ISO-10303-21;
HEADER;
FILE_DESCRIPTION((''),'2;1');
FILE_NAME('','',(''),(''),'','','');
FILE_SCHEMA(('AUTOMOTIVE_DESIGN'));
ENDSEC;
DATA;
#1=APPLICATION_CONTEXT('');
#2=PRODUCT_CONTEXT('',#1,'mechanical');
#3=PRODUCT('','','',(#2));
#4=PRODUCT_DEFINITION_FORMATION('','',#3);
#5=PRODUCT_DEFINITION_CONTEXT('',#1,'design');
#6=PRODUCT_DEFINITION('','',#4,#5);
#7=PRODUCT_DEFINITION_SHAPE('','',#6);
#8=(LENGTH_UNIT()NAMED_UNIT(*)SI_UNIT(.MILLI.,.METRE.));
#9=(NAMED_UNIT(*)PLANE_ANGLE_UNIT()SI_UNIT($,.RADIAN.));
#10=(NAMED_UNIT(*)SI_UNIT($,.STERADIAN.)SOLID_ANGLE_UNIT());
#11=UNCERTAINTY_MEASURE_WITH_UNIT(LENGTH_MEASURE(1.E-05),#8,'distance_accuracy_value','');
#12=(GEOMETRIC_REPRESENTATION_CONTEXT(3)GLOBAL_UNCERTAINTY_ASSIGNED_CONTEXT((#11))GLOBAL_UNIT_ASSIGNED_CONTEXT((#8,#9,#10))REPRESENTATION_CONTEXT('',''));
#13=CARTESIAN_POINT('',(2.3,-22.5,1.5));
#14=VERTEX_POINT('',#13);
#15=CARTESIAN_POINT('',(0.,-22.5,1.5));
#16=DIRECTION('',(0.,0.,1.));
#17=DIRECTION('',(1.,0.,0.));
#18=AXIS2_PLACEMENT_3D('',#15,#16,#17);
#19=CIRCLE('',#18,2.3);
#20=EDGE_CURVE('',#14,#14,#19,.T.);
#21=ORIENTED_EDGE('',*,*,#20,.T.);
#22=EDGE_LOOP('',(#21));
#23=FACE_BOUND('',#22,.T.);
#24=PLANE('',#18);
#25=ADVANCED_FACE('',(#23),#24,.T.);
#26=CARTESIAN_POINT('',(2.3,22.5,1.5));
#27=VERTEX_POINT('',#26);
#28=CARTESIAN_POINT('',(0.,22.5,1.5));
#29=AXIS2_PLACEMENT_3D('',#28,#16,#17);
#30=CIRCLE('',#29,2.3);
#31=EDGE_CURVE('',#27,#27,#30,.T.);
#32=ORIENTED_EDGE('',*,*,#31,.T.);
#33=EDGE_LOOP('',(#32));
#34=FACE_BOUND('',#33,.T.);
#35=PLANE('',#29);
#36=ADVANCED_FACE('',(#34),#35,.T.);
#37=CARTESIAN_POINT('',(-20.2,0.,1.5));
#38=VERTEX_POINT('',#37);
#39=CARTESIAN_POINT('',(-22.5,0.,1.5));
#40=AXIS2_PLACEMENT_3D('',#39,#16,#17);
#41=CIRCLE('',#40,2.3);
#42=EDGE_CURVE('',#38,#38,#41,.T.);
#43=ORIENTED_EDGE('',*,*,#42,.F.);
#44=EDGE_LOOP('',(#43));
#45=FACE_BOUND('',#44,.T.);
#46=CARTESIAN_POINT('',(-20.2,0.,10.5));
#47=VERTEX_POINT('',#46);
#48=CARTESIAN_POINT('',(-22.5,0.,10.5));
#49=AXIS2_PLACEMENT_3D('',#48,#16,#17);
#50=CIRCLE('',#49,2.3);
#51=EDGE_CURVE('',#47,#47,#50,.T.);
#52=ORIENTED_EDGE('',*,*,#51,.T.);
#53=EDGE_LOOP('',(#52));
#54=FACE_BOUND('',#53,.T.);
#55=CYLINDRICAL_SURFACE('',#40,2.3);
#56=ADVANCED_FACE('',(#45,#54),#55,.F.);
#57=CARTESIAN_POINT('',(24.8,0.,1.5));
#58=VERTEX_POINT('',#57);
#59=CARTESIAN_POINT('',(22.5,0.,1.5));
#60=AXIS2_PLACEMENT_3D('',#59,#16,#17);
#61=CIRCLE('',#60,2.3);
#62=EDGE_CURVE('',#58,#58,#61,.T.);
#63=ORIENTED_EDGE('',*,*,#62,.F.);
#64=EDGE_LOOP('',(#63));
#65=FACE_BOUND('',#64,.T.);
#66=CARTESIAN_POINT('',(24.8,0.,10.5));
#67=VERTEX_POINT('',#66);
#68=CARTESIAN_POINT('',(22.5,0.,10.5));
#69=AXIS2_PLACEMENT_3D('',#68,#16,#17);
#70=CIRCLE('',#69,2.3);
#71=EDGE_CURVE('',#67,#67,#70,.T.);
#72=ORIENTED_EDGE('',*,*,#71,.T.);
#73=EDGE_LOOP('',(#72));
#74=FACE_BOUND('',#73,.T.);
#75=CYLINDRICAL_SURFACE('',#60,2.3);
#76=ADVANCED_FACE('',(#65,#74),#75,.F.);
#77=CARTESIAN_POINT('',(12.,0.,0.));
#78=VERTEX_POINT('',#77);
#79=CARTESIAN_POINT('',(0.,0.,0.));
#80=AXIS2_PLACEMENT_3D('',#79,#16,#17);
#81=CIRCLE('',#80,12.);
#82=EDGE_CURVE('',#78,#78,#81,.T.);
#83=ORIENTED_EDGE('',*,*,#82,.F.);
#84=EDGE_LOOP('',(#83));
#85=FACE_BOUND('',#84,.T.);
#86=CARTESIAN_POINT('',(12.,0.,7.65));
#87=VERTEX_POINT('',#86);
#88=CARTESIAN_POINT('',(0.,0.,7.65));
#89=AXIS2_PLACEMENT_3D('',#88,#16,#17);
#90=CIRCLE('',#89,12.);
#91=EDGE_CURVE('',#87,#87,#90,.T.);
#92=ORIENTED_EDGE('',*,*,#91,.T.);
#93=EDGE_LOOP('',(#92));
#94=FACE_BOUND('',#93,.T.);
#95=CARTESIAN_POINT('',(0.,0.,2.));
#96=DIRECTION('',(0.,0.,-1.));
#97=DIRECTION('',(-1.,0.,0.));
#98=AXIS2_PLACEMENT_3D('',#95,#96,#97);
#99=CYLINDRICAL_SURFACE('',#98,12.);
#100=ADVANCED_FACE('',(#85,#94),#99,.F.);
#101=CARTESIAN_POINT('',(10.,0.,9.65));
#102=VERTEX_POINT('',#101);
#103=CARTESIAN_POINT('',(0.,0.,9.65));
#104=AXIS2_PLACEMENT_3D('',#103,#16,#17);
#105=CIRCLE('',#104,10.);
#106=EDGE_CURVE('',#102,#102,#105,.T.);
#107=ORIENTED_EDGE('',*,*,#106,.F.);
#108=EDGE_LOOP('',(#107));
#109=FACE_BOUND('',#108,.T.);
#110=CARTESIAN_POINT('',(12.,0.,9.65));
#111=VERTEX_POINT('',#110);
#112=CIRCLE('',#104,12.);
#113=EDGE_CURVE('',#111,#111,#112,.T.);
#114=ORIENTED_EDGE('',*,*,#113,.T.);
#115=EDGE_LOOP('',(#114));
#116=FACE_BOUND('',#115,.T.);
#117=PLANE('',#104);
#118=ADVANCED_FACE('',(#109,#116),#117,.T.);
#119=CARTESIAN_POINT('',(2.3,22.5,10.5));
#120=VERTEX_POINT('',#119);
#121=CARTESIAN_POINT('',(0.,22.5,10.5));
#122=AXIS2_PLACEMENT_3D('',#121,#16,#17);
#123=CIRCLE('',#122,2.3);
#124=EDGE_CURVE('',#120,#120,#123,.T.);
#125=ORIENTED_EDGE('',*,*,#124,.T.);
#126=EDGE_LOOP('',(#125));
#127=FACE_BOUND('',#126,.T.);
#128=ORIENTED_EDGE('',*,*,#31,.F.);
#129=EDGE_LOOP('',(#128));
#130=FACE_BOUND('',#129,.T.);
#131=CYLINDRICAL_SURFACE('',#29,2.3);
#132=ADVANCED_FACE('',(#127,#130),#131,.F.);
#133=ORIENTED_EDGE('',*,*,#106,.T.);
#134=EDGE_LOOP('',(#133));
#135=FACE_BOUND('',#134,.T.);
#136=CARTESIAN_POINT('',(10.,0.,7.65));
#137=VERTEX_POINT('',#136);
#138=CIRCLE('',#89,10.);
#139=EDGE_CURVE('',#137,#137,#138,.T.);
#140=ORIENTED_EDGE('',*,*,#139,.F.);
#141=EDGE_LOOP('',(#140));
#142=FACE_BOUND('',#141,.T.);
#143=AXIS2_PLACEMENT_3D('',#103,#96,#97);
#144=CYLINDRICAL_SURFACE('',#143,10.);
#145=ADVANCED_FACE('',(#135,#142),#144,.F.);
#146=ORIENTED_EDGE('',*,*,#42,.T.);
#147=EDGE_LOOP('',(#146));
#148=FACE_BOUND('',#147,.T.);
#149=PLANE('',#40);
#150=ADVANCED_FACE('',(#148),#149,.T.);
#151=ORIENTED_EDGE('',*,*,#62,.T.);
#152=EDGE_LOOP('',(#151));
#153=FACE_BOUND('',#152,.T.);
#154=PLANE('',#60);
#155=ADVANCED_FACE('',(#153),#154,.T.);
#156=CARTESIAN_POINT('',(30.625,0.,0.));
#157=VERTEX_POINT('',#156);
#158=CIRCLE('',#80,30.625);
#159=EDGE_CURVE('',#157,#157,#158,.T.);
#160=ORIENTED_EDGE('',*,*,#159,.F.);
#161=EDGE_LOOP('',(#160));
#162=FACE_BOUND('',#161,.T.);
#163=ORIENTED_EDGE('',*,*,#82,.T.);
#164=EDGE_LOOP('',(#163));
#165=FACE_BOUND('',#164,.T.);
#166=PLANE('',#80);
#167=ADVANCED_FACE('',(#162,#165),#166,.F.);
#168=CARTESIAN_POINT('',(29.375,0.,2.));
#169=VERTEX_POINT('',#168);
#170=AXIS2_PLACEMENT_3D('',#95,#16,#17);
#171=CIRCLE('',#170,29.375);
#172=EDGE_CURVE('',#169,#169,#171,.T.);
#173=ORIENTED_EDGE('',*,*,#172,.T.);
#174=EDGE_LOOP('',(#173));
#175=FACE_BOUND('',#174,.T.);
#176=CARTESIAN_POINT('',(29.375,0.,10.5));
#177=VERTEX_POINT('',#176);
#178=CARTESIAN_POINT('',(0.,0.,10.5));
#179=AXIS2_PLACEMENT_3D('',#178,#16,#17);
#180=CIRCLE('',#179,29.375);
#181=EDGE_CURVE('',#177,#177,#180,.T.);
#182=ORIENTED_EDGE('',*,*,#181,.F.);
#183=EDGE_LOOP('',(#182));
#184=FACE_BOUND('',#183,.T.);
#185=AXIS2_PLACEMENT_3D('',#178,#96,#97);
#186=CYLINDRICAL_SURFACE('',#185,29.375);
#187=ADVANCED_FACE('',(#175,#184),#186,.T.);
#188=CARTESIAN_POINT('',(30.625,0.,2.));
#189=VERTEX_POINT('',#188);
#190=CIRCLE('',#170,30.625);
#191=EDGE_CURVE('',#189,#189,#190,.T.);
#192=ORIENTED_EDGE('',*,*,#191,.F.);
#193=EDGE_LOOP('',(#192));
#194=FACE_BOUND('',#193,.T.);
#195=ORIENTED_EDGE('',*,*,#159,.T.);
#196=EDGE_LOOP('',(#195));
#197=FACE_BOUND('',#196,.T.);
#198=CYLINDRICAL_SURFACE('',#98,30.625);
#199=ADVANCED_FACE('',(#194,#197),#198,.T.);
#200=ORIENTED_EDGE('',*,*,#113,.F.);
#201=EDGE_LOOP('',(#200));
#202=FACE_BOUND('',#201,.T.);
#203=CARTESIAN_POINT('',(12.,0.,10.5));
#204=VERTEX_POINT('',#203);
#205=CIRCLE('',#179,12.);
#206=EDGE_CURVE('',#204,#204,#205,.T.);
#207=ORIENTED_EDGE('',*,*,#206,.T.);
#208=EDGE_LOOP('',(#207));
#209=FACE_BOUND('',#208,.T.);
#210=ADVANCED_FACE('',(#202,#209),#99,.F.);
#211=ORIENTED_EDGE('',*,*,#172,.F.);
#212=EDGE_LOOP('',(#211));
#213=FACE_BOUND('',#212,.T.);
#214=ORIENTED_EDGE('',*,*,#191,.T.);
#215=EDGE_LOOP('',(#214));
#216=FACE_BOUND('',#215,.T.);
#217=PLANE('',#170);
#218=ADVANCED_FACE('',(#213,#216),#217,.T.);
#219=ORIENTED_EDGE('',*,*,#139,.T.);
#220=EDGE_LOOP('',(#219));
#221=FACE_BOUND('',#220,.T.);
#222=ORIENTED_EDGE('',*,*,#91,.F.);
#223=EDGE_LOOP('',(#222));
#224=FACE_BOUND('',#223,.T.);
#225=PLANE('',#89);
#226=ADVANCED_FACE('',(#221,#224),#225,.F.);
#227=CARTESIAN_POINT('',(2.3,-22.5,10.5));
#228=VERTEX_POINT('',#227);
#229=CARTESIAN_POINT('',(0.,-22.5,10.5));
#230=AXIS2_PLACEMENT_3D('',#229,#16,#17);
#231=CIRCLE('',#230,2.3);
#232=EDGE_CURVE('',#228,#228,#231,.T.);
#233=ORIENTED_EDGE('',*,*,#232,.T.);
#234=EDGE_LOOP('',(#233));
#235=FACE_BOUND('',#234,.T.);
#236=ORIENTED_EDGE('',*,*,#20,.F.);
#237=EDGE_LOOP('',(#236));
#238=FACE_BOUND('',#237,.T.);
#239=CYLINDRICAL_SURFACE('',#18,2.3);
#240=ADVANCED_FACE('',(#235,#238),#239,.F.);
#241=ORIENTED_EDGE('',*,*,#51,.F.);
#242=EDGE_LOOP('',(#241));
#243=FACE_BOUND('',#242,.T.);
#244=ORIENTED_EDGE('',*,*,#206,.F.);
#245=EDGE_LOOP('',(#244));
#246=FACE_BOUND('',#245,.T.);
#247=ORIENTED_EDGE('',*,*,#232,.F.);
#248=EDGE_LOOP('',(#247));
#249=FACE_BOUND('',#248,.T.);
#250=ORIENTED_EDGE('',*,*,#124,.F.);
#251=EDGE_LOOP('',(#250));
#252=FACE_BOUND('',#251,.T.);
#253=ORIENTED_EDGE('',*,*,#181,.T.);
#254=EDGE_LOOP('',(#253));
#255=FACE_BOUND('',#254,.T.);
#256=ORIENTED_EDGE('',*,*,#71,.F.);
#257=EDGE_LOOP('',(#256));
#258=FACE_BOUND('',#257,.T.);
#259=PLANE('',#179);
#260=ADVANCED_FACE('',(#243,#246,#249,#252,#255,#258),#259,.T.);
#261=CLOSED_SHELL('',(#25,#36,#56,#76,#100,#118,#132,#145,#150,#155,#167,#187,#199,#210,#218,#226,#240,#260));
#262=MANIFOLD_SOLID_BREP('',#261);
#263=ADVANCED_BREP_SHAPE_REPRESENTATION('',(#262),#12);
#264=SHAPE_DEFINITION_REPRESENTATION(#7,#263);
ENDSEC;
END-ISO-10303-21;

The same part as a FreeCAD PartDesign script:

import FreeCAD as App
import Part
import Sketcher

V = App.Vector

doc = App.newDocument("Part")
params = doc.addObject("Spreadsheet::Sheet", "Params")
for row, (alias, value) in enumerate([
    ("sketch1_diameter", "24 mm"),
    ("sketch1_diameter2", "61.25 mm"),
    ("pad1_length", "2 mm"),
    ("sketch2_diameter", "24 mm"),
    ("sketch2_diameter2", "58.75 mm"),
    ("pad2_length", "8.5 mm"),
    ("sketch3_diameter", "24 mm"),
    ("sketch3_diameter2", "20 mm"),
    ("pad3_length", "2 mm"),
    ("sketch4_diameter", "4.6 mm"),
    ("pocket1_length", "9 mm"),
], start=1):
    params.set(f"A{row}", alias)
    params.set(f"B{row}", "=" + value)
    params.setAlias(f"B{row}", alias)

body = doc.addObject("PartDesign::Body", "Body")

# Sketch on XY plane
sketch1 = doc.addObject("Sketcher::SketchObject", "Sketch")
body.addObject(sketch1)
sketch1.AttachmentSupport = (doc.XY_Plane, [""])
sketch1.MapMode = "FlatFace"
sketch1.addGeometry(Part.Circle(V(0, 0, 0), V(0, 0, 1), 31), False)
sketch1.addGeometry(Part.Circle(V(0, 0, 0), V(0, 0, 1), 12), False)
sketch1.addConstraint(Sketcher.Constraint("Coincident", 0, 3, -1, 1))
sketch1.addConstraint(Sketcher.Constraint("Coincident", 1, 3, -1, 1))
sketch1.addConstraint(Sketcher.Constraint("Diameter", 1, 24.0))
sketch1.addConstraint(Sketcher.Constraint("Diameter", 0, 61.25))
sketch1.setExpression("Constraints[2]", "Params.sketch1_diameter")
sketch1.setExpression("Constraints[3]", "Params.sketch1_diameter2")
pad1 = doc.addObject("PartDesign::Pad", "Pad")
body.addObject(pad1)
pad1.Profile = sketch1
pad1.setExpression("Length", "Params.pad1_length")

# Sketch on XY plane
sketch2 = doc.addObject("Sketcher::SketchObject", "Sketch001")
body.addObject(sketch2)
sketch2.AttachmentSupport = (doc.XY_Plane, [""])
sketch2.MapMode = "FlatFace"
sketch2.AttachmentOffset = App.Placement(V(0, 0, 2), App.Rotation())
sketch2.addGeometry(Part.Circle(V(0, 0, 0), V(0, 0, 1), 29), False)
sketch2.addGeometry(Part.Circle(V(0, 0, 0), V(0, 0, 1), 12), False)
sketch2.addConstraint(Sketcher.Constraint("Coincident", 0, 3, -1, 1))
sketch2.addConstraint(Sketcher.Constraint("Coincident", 1, 3, -1, 1))
sketch2.addConstraint(Sketcher.Constraint("Diameter", 1, 24.0))
sketch2.addConstraint(Sketcher.Constraint("Diameter", 0, 58.75))
sketch2.setExpression("Constraints[2]", "Params.sketch2_diameter")
sketch2.setExpression("Constraints[3]", "Params.sketch2_diameter2")
pad2 = doc.addObject("PartDesign::Pad", "Pad001")
body.addObject(pad2)
pad2.Profile = sketch2
pad2.setExpression("Length", "Params.pad2_length")

# Sketch on XY plane
sketch3 = doc.addObject("Sketcher::SketchObject", "Sketch002")
body.addObject(sketch3)
sketch3.AttachmentSupport = (doc.XY_Plane, [""])
sketch3.MapMode = "FlatFace"
sketch3.AttachmentOffset = App.Placement(V(0, 0, 7.65), App.Rotation())
sketch3.addGeometry(Part.Circle(V(0, 0, 0), V(0, 0, 1), 12), False)
sketch3.addGeometry(Part.Circle(V(0, 0, 0), V(0, 0, 1), 10), False)
sketch3.addConstraint(Sketcher.Constraint("Coincident", 0, 3, -1, 1))
sketch3.addConstraint(Sketcher.Constraint("Coincident", 1, 3, -1, 1))
sketch3.addConstraint(Sketcher.Constraint("Diameter", 0, 24.0))
sketch3.addConstraint(Sketcher.Constraint("Diameter", 1, 20.0))
sketch3.setExpression("Constraints[2]", "Params.sketch3_diameter")
sketch3.setExpression("Constraints[3]", "Params.sketch3_diameter2")
pad3 = doc.addObject("PartDesign::Pad", "Pad002")
body.addObject(pad3)
pad3.Profile = sketch3
pad3.setExpression("Length", "Params.pad3_length")

# Sketch on XY plane
sketch4 = doc.addObject("Sketcher::SketchObject", "Sketch003")
body.addObject(sketch4)
sketch4.AttachmentSupport = (doc.XY_Plane, [""])
sketch4.MapMode = "FlatFace"
sketch4.AttachmentOffset = App.Placement(V(0, 0, 10.5), App.Rotation())
sketch4.addGeometry(Part.Circle(V(0, 22.5, 0), V(0, 0, 1), 2.3), False)
sketch4.addGeometry(Part.Circle(V(22.5, 0, 0), V(0, 0, 1), 2.3), False)
sketch4.addGeometry(Part.Circle(V(0, -22.5, 0), V(0, 0, 1), 2.3), False)
sketch4.addGeometry(Part.Circle(V(-22.5, 0, 0), V(0, 0, 1), 2.3), False)
sketch4.addConstraint(Sketcher.Constraint("Equal", 0, 1))
sketch4.addConstraint(Sketcher.Constraint("Equal", 1, 2))
sketch4.addConstraint(Sketcher.Constraint("Equal", 2, 3))
sketch4.addConstraint(Sketcher.Constraint("Symmetric", 0, 3, 2, 3, -1, 1))
sketch4.addConstraint(Sketcher.Constraint("Symmetric", 1, 3, 3, 3, -1, 1))
sketch4.addConstraint(Sketcher.Constraint("PointOnObject", 0, 3, -2))
sketch4.addConstraint(Sketcher.Constraint("PointOnObject", 1, 3, -1))
sketch4.addConstraint(Sketcher.Constraint("Diameter", 0, 4.6))
sketch4.addConstraint(Sketcher.Constraint("DistanceY", 2, 3, 0, 3, 45.0))
sketch4.addConstraint(Sketcher.Constraint("DistanceX", 3, 3, 1, 3, 45.0))
sketch4.setExpression("Constraints[7]", "Params.sketch4_diameter")
pocket1 = doc.addObject("PartDesign::Pocket", "Pocket")
body.addObject(pocket1)
pocket1.Profile = sketch4
pocket1.setExpression("Length", "Params.pocket1_length")

doc.recompute()
